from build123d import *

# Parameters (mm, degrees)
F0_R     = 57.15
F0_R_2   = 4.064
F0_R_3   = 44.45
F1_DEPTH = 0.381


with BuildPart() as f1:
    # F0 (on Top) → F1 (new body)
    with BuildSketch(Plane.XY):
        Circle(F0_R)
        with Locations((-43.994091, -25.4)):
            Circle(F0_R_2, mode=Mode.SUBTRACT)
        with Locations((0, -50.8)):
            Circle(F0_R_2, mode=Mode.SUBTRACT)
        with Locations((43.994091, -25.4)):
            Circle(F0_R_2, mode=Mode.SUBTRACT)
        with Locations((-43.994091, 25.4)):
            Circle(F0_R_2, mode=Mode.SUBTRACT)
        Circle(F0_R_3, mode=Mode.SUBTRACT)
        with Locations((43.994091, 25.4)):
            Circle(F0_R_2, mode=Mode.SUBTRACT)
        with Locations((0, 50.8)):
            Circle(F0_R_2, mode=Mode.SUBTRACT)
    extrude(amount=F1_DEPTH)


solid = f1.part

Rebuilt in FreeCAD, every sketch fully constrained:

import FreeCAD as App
import Part
import Sketcher
from FreeCAD import Vector
Q = App.Units.Quantity

doc = App.newDocument("Part")
params = doc.addObject("Spreadsheet::Sheet", "Params")
for row, (alias, value) in enumerate([
    ("sketch1_diameter", "4.5 in"),
    ("sketch1_diameter2", "3.5 in"),
    ("sketch1_diameter3", "0.32 in"),
    ("pad1_length", "0.015 in"),
], start=1):
    params.set(f"A{row}", alias)
    params.set(f"B{row}", "=" + value)
    params.setAlias(f"B{row}", alias)

body = doc.addObject("PartDesign::Body", "Body")

sketch1 = doc.addObject("Sketcher::SketchObject", "Sketch")
body.addObject(sketch1)
sketch1.AttachmentSupport = (doc.XY_Plane, [""])
sketch1.MapMode = "FlatFace"
sketch1.addGeometry([
    Part.Circle(Vector(0, 0, 0), Vector(0, 0, 1), 57.1),
    Part.Circle(Vector(-44, -25.4, 0), Vector(0, 0, 1), 4.1),
    Part.Circle(Vector(0, -50.8, 0), Vector(0, 0, 1), 4.1),
    Part.Circle(Vector(44, -25.4, 0), Vector(0, 0, 1), 4.1),
    Part.Circle(Vector(-44, 25.4, 0), Vector(0, 0, 1), 4.1),
    Part.Circle(Vector(0, 0, 0), Vector(0, 0, 1), 44.5),
    Part.Circle(Vector(44, 25.4, 0), Vector(0, 0, 1), 4.1),
    Part.Circle(Vector(0, 50.8, 0), Vector(0, 0, 1), 4.1),
], False)
sketch1.addConstraint([
    Sketcher.Constraint("Coincident", 0, 3, -1, 1),
    Sketcher.Constraint("Coincident", 5, 3, -1, 1),
    Sketcher.Constraint("Equal", 1, 2),
    Sketcher.Constraint("Equal", 2, 3),
    Sketcher.Constraint("Equal", 3, 4),
    Sketcher.Constraint("Equal", 4, 6),
    Sketcher.Constraint("Equal", 6, 7),
    Sketcher.Constraint("Symmetric", 3, 3, 4, 3, -1, 1),
    Sketcher.Constraint("Symmetric", 1, 3, 6, 3, -1, 1),
    Sketcher.Constraint("Symmetric", 2, 3, 7, 3, -1, 1),
    Sketcher.Constraint("Symmetric", 1, 3, 3, 3, -2),
    Sketcher.Constraint("PointOnObject", 2, 3, -2),
    Sketcher.Constraint("Diameter", 0, Q("4.5 in")),
    Sketcher.Constraint("Diameter", 5, Q("3.5 in")),
    Sketcher.Constraint("Diameter", 1, Q("0.32 in")),
    Sketcher.Constraint("DistanceY", 1, 3, -1, 1, Q("1 in")),
    Sketcher.Constraint("DistanceY", 2, 3, -1, 1, Q("2 in")),
    Sketcher.Constraint("DistanceX", 1, 3, -1, 1, 43.994091),
])
sketch1.setExpression("Constraints[12]", "Params.sketch1_diameter")
sketch1.setExpression("Constraints[13]", "Params.sketch1_diameter2")
sketch1.setExpression("Constraints[14]", "Params.sketch1_diameter3")
pad1 = doc.addObject("PartDesign::Pad", "Pad")
body.addObject(pad1)
pad1.Profile = sketch1
pad1.setExpression("Length", "Params.pad1_length")

doc.recompute()
